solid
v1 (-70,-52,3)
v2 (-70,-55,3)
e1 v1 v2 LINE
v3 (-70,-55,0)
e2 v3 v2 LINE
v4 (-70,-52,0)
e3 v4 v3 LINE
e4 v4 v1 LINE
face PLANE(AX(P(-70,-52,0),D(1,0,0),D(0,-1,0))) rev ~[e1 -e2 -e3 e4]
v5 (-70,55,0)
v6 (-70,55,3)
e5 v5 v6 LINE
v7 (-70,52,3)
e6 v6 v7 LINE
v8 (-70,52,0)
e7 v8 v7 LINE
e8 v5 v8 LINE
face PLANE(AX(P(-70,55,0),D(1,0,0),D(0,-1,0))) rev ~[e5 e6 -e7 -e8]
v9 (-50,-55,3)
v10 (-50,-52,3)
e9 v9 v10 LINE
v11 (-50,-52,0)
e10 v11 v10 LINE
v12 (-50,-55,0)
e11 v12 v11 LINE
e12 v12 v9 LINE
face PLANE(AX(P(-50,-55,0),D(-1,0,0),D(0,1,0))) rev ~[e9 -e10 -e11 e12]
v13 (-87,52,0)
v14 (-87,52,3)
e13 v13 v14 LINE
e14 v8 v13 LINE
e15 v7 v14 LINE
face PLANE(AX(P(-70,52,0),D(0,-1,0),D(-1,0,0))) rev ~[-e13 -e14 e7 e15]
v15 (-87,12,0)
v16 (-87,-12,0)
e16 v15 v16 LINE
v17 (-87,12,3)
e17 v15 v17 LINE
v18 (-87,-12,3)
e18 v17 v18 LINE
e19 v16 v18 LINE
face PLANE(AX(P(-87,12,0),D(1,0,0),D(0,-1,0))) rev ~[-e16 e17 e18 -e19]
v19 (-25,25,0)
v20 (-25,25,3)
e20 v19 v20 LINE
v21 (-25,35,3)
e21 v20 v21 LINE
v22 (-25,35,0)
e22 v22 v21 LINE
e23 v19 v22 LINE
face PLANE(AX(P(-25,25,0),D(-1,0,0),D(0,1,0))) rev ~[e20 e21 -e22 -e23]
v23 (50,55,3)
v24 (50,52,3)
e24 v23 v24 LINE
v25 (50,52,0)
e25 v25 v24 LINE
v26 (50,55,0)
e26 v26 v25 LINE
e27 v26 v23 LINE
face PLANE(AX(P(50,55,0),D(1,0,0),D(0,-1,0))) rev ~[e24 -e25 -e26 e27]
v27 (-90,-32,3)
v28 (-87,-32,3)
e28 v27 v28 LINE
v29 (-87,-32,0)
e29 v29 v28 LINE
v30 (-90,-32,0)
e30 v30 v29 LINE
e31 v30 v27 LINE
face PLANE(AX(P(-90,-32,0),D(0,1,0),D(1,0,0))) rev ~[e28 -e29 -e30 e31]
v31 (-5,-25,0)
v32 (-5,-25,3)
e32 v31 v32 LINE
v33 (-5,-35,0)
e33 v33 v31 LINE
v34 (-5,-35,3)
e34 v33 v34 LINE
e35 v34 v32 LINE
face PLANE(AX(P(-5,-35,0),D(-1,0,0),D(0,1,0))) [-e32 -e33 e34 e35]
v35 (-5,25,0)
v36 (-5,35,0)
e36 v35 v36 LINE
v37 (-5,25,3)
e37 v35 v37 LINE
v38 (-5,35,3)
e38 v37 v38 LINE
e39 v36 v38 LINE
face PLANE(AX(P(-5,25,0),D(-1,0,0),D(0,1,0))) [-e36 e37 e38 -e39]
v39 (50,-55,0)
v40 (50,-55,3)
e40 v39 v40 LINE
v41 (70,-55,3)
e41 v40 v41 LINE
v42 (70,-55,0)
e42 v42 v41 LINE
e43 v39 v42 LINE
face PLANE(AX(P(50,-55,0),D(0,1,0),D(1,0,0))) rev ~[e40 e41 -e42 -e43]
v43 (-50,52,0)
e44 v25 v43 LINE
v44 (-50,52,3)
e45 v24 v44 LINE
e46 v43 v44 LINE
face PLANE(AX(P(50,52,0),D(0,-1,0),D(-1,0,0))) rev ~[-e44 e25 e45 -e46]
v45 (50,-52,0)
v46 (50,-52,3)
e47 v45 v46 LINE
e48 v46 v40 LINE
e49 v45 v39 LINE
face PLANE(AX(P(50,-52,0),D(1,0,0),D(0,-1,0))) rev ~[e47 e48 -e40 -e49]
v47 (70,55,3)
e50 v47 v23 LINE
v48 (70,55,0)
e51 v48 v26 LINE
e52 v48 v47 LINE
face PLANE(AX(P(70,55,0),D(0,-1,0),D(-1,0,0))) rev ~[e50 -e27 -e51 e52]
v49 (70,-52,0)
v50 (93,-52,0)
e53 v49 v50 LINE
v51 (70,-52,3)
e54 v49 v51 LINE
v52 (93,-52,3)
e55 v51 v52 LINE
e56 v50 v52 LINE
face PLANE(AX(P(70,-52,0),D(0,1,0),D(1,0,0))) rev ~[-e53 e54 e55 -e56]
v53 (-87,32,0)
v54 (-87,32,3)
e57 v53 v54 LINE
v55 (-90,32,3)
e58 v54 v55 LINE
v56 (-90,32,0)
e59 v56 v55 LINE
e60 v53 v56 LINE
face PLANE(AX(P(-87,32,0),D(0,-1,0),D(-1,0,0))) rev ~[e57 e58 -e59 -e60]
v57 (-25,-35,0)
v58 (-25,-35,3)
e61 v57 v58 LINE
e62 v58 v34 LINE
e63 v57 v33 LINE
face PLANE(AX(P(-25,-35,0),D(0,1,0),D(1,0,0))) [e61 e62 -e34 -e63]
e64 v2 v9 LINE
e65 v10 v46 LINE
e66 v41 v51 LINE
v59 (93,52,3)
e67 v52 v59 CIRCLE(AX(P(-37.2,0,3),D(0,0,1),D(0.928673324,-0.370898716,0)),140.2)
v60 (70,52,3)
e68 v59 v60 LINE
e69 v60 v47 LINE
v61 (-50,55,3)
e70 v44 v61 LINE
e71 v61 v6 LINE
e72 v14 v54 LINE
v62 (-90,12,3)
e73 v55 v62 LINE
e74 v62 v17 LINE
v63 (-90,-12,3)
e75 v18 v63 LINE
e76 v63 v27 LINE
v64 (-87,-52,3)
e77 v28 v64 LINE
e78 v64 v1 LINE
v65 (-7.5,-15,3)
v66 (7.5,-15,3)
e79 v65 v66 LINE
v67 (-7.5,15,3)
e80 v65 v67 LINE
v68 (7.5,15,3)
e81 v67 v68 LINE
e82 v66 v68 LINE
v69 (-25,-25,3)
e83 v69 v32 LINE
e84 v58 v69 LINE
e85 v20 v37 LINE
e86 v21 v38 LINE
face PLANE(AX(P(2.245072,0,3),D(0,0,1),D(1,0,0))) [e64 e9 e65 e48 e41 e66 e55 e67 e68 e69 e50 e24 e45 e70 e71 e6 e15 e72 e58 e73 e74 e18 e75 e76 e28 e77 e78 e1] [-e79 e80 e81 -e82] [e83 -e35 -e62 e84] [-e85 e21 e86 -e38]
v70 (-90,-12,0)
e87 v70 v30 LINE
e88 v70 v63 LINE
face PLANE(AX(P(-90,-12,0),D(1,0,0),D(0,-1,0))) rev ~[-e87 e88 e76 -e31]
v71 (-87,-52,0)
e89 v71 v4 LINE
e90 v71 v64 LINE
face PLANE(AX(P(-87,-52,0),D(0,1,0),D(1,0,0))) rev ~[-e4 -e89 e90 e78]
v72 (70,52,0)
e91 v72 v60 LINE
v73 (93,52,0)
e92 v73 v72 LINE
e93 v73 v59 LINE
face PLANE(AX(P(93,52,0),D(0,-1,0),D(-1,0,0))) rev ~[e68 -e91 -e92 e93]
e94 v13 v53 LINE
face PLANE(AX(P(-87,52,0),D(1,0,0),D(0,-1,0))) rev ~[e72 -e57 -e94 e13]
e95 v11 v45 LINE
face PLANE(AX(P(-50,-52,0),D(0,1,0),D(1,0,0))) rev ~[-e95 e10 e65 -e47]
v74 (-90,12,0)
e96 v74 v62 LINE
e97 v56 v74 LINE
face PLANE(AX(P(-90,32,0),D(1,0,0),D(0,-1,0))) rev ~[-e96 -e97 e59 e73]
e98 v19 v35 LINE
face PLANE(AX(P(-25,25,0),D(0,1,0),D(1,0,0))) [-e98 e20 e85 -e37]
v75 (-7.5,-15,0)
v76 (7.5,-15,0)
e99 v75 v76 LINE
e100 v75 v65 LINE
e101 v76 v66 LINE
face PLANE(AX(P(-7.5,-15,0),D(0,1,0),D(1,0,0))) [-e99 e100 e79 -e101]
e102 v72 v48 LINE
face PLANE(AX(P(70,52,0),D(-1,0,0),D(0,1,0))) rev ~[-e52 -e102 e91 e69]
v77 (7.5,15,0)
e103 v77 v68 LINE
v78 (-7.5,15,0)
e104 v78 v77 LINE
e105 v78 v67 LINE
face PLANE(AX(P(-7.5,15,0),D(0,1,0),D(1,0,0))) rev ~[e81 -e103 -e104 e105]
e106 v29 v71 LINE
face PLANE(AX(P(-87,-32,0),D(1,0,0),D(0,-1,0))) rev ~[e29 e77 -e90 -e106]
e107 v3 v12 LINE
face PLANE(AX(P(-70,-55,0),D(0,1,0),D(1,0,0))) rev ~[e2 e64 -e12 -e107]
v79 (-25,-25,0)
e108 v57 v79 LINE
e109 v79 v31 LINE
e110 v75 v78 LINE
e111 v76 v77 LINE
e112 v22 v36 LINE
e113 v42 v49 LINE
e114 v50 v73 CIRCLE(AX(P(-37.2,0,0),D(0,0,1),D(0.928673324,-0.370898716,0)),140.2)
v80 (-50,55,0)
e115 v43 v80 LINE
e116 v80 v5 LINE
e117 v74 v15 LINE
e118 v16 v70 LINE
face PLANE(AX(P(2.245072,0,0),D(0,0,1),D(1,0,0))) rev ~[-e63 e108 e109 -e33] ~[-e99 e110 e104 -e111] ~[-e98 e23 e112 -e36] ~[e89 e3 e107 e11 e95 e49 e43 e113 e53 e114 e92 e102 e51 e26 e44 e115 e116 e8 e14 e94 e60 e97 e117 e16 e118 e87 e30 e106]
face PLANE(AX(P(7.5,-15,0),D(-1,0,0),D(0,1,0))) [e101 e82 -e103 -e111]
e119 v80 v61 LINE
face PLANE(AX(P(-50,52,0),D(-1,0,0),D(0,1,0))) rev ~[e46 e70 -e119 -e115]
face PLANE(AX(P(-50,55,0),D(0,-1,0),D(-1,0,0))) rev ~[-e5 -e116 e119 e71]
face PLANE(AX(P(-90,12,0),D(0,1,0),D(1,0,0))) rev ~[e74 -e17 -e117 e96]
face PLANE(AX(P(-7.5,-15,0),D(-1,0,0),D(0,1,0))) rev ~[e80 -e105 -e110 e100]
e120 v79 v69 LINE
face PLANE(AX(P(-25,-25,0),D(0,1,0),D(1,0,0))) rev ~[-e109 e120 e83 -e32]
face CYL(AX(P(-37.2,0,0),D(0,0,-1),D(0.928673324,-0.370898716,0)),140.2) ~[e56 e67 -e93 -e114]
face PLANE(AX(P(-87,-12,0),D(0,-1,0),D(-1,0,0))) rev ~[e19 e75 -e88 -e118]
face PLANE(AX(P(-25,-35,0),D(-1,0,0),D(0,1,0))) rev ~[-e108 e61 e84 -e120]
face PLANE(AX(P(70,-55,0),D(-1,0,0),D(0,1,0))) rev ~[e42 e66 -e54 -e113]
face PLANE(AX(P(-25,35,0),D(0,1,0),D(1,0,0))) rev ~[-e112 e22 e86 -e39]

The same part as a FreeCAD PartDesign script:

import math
import FreeCAD as App
import Part
import Sketcher
Q = App.Units.Quantity

doc = App.newDocument("Part")
body = doc.addObject("PartDesign::Body", "Body")

# Sketch on XY plane
sketch1 = body.newObject("Sketcher::SketchObject", "Sketch")
sketch1.AttachmentSupport = (doc.getObject("XY_Plane"), [""])
sketch1.MapMode = "FlatFace"
sketch1.addGeometry([
    Part.LineSegment(App.Vector(-50, 52, 0), App.Vector(-50, 55, 0)),  # 0
    Part.LineSegment(App.Vector(-50, 55, 0), App.Vector(-70, 55, 0)),  # 1
    Part.LineSegment(App.Vector(-70, 55, 0), App.Vector(-70, 52, 0)),  # 2
    Part.LineSegment(App.Vector(-70, 52, 0), App.Vector(-87, 52, 0)),  # 3
    Part.LineSegment(App.Vector(-87, 52, 0), App.Vector(-87, 32, 0)),  # 4
    Part.LineSegment(App.Vector(-87, 32, 0), App.Vector(-90, 32, 0)),  # 5
    Part.LineSegment(App.Vector(-90, 32, 0), App.Vector(-90, 12, 0)),  # 6
    Part.LineSegment(App.Vector(-90, 12, 0), App.Vector(-87, 12, 0)),  # 7
    Part.LineSegment(App.Vector(-87, 12, 0), App.Vector(-87, -12, 0)),  # 8
    Part.LineSegment(App.Vector(-87, -12, 0), App.Vector(-90, -12, 0)),  # 9
    Part.LineSegment(App.Vector(-90, -12, 0), App.Vector(-90, -32, 0)),  # 10
    Part.LineSegment(App.Vector(-90, -32, 0), App.Vector(-87, -32, 0)),  # 11
    Part.LineSegment(App.Vector(-87, -32, 0), App.Vector(-87, -52, 0)),  # 12
    Part.LineSegment(App.Vector(-87, -52, 0), App.Vector(-70, -52, 0)),  # 13
    Part.LineSegment(App.Vector(-70, -52, 0), App.Vector(-70, -55, 0)),  # 14
    Part.LineSegment(App.Vector(-70, -55, 0), App.Vector(-50, -55, 0)),  # 15
    Part.LineSegment(App.Vector(-50, -55, 0), App.Vector(-50, -52, 0)),  # 16
    Part.LineSegment(App.Vector(-50, -52, 0), App.Vector(50, -52, 0)),  # 17
    Part.LineSegment(App.Vector(50, -52, 0), App.Vector(50, -55, 0)),  # 18
    Part.LineSegment(App.Vector(50, -55, 0), App.Vector(70, -55, 0)),  # 19
    Part.LineSegment(App.Vector(70, -55, 0), App.Vector(70, -52, 0)),  # 20
    Part.LineSegment(App.Vector(70, -52, 0), App.Vector(93, -52, 0)),  # 21
    Part.ArcOfCircle(Part.Circle(App.Vector(-37.2, 0, 0), App.Vector(0, 0, 1), 140.2), math.radians(-22), math.radians(22)),  # 22
    Part.LineSegment(App.Vector(93, 52, 0), App.Vector(70, 52, 0)),  # 23
    Part.LineSegment(App.Vector(70, 52, 0), App.Vector(70, 55, 0)),  # 24
    Part.LineSegment(App.Vector(70, 55, 0), App.Vector(50, 55, 0)),  # 25
    Part.LineSegment(App.Vector(50, 55, 0), App.Vector(50, 52, 0)),  # 26
    Part.LineSegment(App.Vector(50, 52, 0), App.Vector(-50, 52, 0)),  # 27
    Part.LineSegment(App.Vector(-5, -35, 0), App.Vector(-25, -35, 0)),  # 28
    Part.LineSegment(App.Vector(-25, -35, 0), App.Vector(-25, -25, 0)),  # 29
    Part.LineSegment(App.Vector(-25, -25, 0), App.Vector(-5, -25, 0)),  # 30
    Part.LineSegment(App.Vector(-5, -25, 0), App.Vector(-5, -35, 0)),  # 31
    Part.LineSegment(App.Vector(-5, 25, 0), App.Vector(-25, 25, 0)),  # 32
    Part.LineSegment(App.Vector(-25, 25, 0), App.Vector(-25, 35, 0)),  # 33
    Part.LineSegment(App.Vector(-25, 35, 0), App.Vector(-5, 35, 0)),  # 34
    Part.LineSegment(App.Vector(-5, 35, 0), App.Vector(-5, 25, 0)),  # 35
    Part.LineSegment(App.Vector(7.5, -15, 0), App.Vector(-7.5, -15, 0)),  # 36
    Part.LineSegment(App.Vector(-7.5, -15, 0), App.Vector(-7.5, 15, 0)),  # 37
    Part.LineSegment(App.Vector(-7.5, 15, 0), App.Vector(7.5, 15, 0)),  # 38
    Part.LineSegment(App.Vector(7.5, 15, 0), App.Vector(7.5, -15, 0)),  # 39
], False)
sketch1.addConstraint([
    Sketcher.Constraint("Coincident", 0, 2, 1, 1),
    Sketcher.Constraint("Coincident", 1, 2, 2, 1),
    Sketcher.Constraint("Coincident", 2, 2, 3, 1),
    Sketcher.Constraint("Coincident", 3, 2, 4, 1),
    Sketcher.Constraint("Coincident", 4, 2, 5, 1),
    Sketcher.Constraint("Coincident", 5, 2, 6, 1),
    Sketcher.Constraint("Coincident", 6, 2, 7, 1),
    Sketcher.Constraint("Coincident", 7, 2, 8, 1),
    Sketcher.Constraint("Coincident", 8, 2, 9, 1),
    Sketcher.Constraint("Coincident", 9, 2, 10, 1),
    Sketcher.Constraint("Coincident", 10, 2, 11, 1),
    Sketcher.Constraint("Coincident", 11, 2, 12, 1),
    Sketcher.Constraint("Coincident", 12, 2, 13, 1),
    Sketcher.Constraint("Coincident", 13, 2, 14, 1),
    Sketcher.Constraint("Coincident", 14, 2, 15, 1),
    Sketcher.Constraint("Coincident", 15, 2, 16, 1),
    Sketcher.Constraint("Coincident", 16, 2, 17, 1),
    Sketcher.Constraint("Coincident", 17, 2, 18, 1),
    Sketcher.Constraint("Coincident", 18, 2, 19, 1),
    Sketcher.Constraint("Coincident", 19, 2, 20, 1),
    Sketcher.Constraint("Coincident", 20, 2, 21, 1),
    Sketcher.Constraint("Coincident", 21, 2, 22, 1),
    Sketcher.Constraint("Coincident", 22, 2, 23, 1),
    Sketcher.Constraint("Coincident", 23, 2, 24, 1),
    Sketcher.Constraint("Coincident", 24, 2, 25, 1),
    Sketcher.Constraint("Coincident", 25, 2, 26, 1),
    Sketcher.Constraint("Coincident", 26, 2, 27, 1),
    Sketcher.Constraint("Coincident", 27, 2, 0, 1),
    Sketcher.Constraint("Coincident", 28, 2, 29, 1),
    Sketcher.Constraint("Coincident", 29, 2, 30, 1),
    Sketcher.Constraint("Coincident", 30, 2, 31, 1),
    Sketcher.Constraint("Coincident", 31, 2, 28, 1),
    Sketcher.Constraint("Coincident", 32, 2, 33, 1),
    Sketcher.Constraint("Coincident", 33, 2, 34, 1),
    Sketcher.Constraint("Coincident", 34, 2, 35, 1),
    Sketcher.Constraint("Coincident", 35, 2, 32, 1),
    Sketcher.Constraint("Coincident", 36, 2, 37, 1),
    Sketcher.Constraint("Coincident", 37, 2, 38, 1),
    Sketcher.Constraint("Coincident", 38, 2, 39, 1),
    Sketcher.Constraint("Coincident", 39, 2, 36, 1),
    Sketcher.Constraint("Vertical", 0),
    Sketcher.Constraint("Horizontal", 1),
    Sketcher.Constraint("Vertical", 2),
    Sketcher.Constraint("Horizontal", 3),
    Sketcher.Constraint("Vertical", 4),
    Sketcher.Constraint("Horizontal", 5),
    Sketcher.Constraint("Vertical", 6),
    Sketcher.Constraint("Horizontal", 7),
    Sketcher.Constraint("Vertical", 8),
    Sketcher.Constraint("Horizontal", 9),
    Sketcher.Constraint("Vertical", 10),
    Sketcher.Constraint("Horizontal", 11),
    Sketcher.Constraint("Vertical", 12),
    Sketcher.Constraint("Horizontal", 13),
    Sketcher.Constraint("Vertical", 14),
    Sketcher.Constraint("Horizontal", 15),
    Sketcher.Constraint("Vertical", 16),
    Sketcher.Constraint("Horizontal", 17),
    Sketcher.Constraint("Vertical", 18),
    Sketcher.Constraint("Horizontal", 19),
    Sketcher.Constraint("Vertical", 20),
    Sketcher.Constraint("Horizontal", 21),
    Sketcher.Constraint("Horizontal", 23),
    Sketcher.Constraint("Vertical", 24),
    Sketcher.Constraint("Horizontal", 25),
    Sketcher.Constraint("Vertical", 26),
    Sketcher.Constraint("Horizontal", 27),
    Sketcher.Constraint("Horizontal", 28),
    Sketcher.Constraint("Vertical", 29),
    Sketcher.Constraint("Horizontal", 30),
    Sketcher.Constraint("Vertical", 31),
    Sketcher.Constraint("Horizontal", 32),
    Sketcher.Constraint("Vertical", 33),
    Sketcher.Constraint("Horizontal", 34),
    Sketcher.Constraint("Vertical", 35),
    Sketcher.Constraint("Horizontal", 36),
    Sketcher.Constraint("Vertical", 37),
    Sketcher.Constraint("Horizontal", 38),
    Sketcher.Constraint("Vertical", 39),
    Sketcher.Constraint("Symmetric", 0, 2, 18, 2, -1, 1),
    Sketcher.Constraint("Symmetric", 2, 2, 20, 2, -1, 1),
    Sketcher.Constraint("Symmetric", 13, 2, 23, 2, -1, 1),
    Sketcher.Constraint("Symmetric", 15, 2, 25, 2, -1, 1),
    Sketcher.Constraint("Symmetric", 36, 2, 38, 2, -1, 1),
    Sketcher.Constraint("Symmetric", 15, 2, 18, 2, -2),
    Sketcher.Constraint("Symmetric", 13, 2, 20, 2, -2),
    Sketcher.Constraint("Symmetric", 6, 2, 9, 2, -1),
    Sketcher.Constraint("Symmetric", 4, 2, 11, 2, -1),
    Sketcher.Constraint("Symmetric", 29, 2, 32, 2, -1),
    Sketcher.Constraint("Symmetric", 31, 2, 34, 2, -1),
    Sketcher.Constraint("PointOnObject", 22, 3, -1),
    Sketcher.Constraint("Horizontal", 13, 2, 16, 2),
    Sketcher.Constraint("Horizontal", 23, 2, 26, 2),
    Sketcher.Constraint("Vertical", 4, 2, 7, 2),
    Sketcher.Constraint("Equal", 25, 28),
    Sketcher.Constraint("Equal", 11, 0),
    Sketcher.Constraint("Equal", 34, 4),
    Sketcher.Constraint("Equal", 4, 6),
    Sketcher.Constraint("Radius", 22, Q("140.2 mm")),
    Sketcher.Constraint("DistanceX", 1, 2, 1, 1, Q("20 mm")),
    Sketcher.Constraint("DistanceX", 3, 2, 3, 1, Q("17 mm")),
    Sketcher.Constraint("DistanceX", 5, 2, 5, 1, Q("3 mm")),
    Sketcher.Constraint("DistanceX", 17, 1, 17, 2, Q("100 mm")),
    Sketcher.Constraint("DistanceX", 21, 1, 21, 2, Q("23 mm")),
    Sketcher.Constraint("DistanceX", 36, 2, 36, 1, Q("15 mm")),
    Sketcher.Constraint("DistanceY", 8, 2, 8, 1, Q("24 mm")),
    Sketcher.Constraint("DistanceY", 29, 1, 29, 2, Q("10 mm")),
    Sketcher.Constraint("DistanceY", 37, 1, 37, 2, Q("30 mm")),
    Sketcher.Constraint("DistanceX", 28, 2, -1, 1, Q("25 mm")),
    Sketcher.Constraint("DistanceY", 28, 2, -1, 1, Q("35 mm")),
])
pad1 = body.newObject("PartDesign::Pad", "Pad")
pad1.Profile = sketch1
pad1.Length = 3

doc.recompute()
